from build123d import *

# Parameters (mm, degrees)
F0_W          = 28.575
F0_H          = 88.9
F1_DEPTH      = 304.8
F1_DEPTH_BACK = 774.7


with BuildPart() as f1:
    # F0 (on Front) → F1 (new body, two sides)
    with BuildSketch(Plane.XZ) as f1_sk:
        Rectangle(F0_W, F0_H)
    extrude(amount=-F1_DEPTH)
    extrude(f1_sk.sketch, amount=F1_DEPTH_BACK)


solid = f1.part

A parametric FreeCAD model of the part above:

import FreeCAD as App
import Part
import Sketcher
Q = App.Units.Quantity

doc = App.newDocument("Part")
body = doc.addObject("PartDesign::Body", "Body")

sketch1 = doc.addObject("Sketcher::SketchObject", "Sketch")
body.addObject(sketch1)
sketch1.AttachmentSupport = (doc.XZ_Plane, [""])
sketch1.MapMode = "FlatFace"
sketch1.addGeometry([
    Part.LineSegment(App.Vector(-14, 44, 0), App.Vector(-14, -44, 0)),
    Part.LineSegment(App.Vector(-14, -44, 0), App.Vector(14, -44, 0)),
    Part.LineSegment(App.Vector(14, -44, 0), App.Vector(14, 44, 0)),
    Part.LineSegment(App.Vector(14, 44, 0), App.Vector(-14, 44, 0)),
], False)
sketch1.addConstraint([
    Sketcher.Constraint("Coincident", 0, 2, 1, 1),
    Sketcher.Constraint("Coincident", 1, 2, 2, 1),
    Sketcher.Constraint("Coincident", 2, 2, 3, 1),
    Sketcher.Constraint("Coincident", 3, 2, 0, 1),
    Sketcher.Constraint("Vertical", 0),
    Sketcher.Constraint("Horizontal", 1),
    Sketcher.Constraint("Vertical", 2),
    Sketcher.Constraint("Horizontal", 3),
    Sketcher.Constraint("Symmetric", 0, 2, 2, 2, -1, 1),
    Sketcher.Constraint("DistanceY", 0, 2, 0, 1, Q("3.5 in")),
    Sketcher.Constraint("DistanceX", 1, 1, 1, 2, Q("1.125 in")),
])
pad1 = doc.addObject("PartDesign::Pad", "Pad")
body.addObject(pad1)
pad1.Profile = sketch1
pad1.Type = "TwoLengths"
pad1.Length = Q("12 in")
pad1.Length2 = Q("30.5 in")
pad1.Reversed = True

doc.recompute()
